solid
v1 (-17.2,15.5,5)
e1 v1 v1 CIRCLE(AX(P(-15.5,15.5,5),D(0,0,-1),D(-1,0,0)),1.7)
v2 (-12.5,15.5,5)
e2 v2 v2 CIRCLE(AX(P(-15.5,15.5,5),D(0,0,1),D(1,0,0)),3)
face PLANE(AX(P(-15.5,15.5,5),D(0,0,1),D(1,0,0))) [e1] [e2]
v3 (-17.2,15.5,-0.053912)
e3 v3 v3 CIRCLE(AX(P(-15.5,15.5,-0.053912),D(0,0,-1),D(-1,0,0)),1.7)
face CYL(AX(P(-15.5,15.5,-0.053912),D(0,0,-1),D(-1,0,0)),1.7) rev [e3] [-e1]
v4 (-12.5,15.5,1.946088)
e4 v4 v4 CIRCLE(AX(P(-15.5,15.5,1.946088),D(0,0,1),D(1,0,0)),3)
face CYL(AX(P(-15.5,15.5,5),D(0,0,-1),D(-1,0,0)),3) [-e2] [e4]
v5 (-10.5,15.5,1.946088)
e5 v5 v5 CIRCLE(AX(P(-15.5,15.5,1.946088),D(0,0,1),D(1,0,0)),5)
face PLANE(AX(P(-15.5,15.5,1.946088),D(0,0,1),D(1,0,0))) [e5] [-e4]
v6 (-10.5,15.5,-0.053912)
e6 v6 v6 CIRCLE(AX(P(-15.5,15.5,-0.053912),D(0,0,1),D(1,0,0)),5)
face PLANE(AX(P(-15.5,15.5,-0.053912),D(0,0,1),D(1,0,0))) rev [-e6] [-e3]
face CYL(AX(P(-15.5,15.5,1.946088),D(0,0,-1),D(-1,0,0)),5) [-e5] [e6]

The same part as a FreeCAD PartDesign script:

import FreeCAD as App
import Part
import Sketcher
Q = App.Units.Quantity

doc = App.newDocument("Part")
body = doc.addObject("PartDesign::Body", "Body")

# Sketch on XY plane
sketch1 = doc.addObject("Sketcher::SketchObject", "Sketch")
body.addObject(sketch1)
sketch1.AttachmentSupport = (doc.XY_Plane, [""])
sketch1.MapMode = "FlatFace"
sketch1.addGeometry(Part.Circle(App.Vector(-15.5, 15.5, 0), App.Vector(0, 0, 1), 3), False)
sketch1.addConstraint(Sketcher.Constraint("Diameter", 0, Q("6 mm")))
sketch1.addConstraint(Sketcher.Constraint("DistanceX", 0, 3, -1, 1, Q("15.5 mm")))
sketch1.addConstraint(Sketcher.Constraint("DistanceY", -1, 1, 0, 3, Q("15.5 mm")))
pad1 = doc.addObject("PartDesign::Pad", "Pad")
body.addObject(pad1)
pad1.Profile = sketch1
pad1.Length = 5

# Sketch on XY plane
sketch2 = doc.addObject("Sketcher::SketchObject", "Sketch001")
body.addObject(sketch2)
sketch2.AttachmentSupport = (doc.XY_Plane, [""])
sketch2.MapMode = "FlatFace"
sketch2.AttachmentOffset = App.Placement(App.Vector(0, 0, -0.053912), App.Rotation())
sketch2.addGeometry(Part.Circle(App.Vector(-15.5, 15.5, 0), App.Vector(0, 0, 1), 5), False)
sketch2.addConstraint(Sketcher.Constraint("Diameter", 0, Q("10 mm")))
sketch2.addConstraint(Sketcher.Constraint("DistanceX", 0, 3, -1, 1, Q("15.5 mm")))
sketch2.addConstraint(Sketcher.Constraint("DistanceY", -1, 1, 0, 3, Q("15.5 mm")))
pad2 = doc.addObject("PartDesign::Pad", "Pad001")
body.addObject(pad2)
pad2.Profile = sketch2
pad2.Length = 2

# Sketch on XY plane
sketch3 = doc.addObject("Sketcher::SketchObject", "Sketch002")
body.addObject(sketch3)
sketch3.AttachmentSupport = (doc.XY_Plane, [""])
sketch3.MapMode = "FlatFace"
sketch3.AttachmentOffset = App.Placement(App.Vector(0, 0, -0.053912), App.Rotation())
sketch3.addGeometry(Part.Circle(App.Vector(-15.5, 15.5, 0), App.Vector(0, 0, 1), 1.7), False)
sketch3.addConstraint(Sketcher.Constraint("Diameter", 0, Q("3.4 mm")))
sketch3.addConstraint(Sketcher.Constraint("DistanceX", 0, 3, -1, 1, Q("15.5 mm")))
sketch3.addConstraint(Sketcher.Constraint("DistanceY", -1, 1, 0, 3, Q("15.5 mm")))
doc.recompute()
hole = doc.addObject("PartDesign::Hole", "Hole")
body.addObject(hole)
hole.Profile = sketch3
hole.ThreadType = "None"
hole.Diameter = 3.4
hole.DepthType = "ThroughAll"
hole.Reversed = True

doc.recompute()
